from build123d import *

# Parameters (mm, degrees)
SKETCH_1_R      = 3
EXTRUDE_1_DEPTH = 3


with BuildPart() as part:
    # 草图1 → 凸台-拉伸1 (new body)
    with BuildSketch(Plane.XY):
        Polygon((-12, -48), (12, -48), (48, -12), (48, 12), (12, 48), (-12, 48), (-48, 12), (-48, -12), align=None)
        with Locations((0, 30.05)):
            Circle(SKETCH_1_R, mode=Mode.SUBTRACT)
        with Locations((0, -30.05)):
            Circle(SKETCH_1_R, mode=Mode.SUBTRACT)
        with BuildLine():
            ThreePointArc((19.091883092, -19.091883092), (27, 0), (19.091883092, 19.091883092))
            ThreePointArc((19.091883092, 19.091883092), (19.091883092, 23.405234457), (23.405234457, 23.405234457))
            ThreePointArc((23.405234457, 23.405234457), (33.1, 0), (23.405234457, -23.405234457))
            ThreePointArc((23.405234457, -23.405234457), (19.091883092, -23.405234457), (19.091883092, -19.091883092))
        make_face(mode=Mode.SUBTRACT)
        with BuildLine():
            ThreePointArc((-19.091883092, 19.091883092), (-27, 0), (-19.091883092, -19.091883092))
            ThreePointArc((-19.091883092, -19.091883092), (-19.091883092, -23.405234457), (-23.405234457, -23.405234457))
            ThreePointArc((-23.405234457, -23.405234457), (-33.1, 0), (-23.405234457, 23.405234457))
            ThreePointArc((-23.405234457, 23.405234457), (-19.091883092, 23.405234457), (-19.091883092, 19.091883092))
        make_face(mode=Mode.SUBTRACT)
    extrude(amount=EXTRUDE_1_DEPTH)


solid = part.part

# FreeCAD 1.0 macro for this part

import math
import FreeCAD as App
import Part
import Sketcher

V = App.Vector
Q = App.Units.Quantity

doc = App.newDocument("Part")
body = doc.addObject("PartDesign::Body", "Body")

# Sketch on XY plane
sketch1 = body.newObject("Sketcher::SketchObject", "Sketch")
sketch1.AttachmentSupport = (doc.getObject("XY_Plane"), [""])
sketch1.MapMode = "FlatFace"
sketch1.addGeometry([
    Part.LineSegment(V(-12, -48, 0), V(12, -48, 0)),  # 0
    Part.LineSegment(V(12, -48, 0), V(48, -12, 0)),  # 1
    Part.LineSegment(V(48, -12, 0), V(48, 12, 0)),  # 2
    Part.LineSegment(V(48, 12, 0), V(12, 48, 0)),  # 3
    Part.LineSegment(V(12, 48, 0), V(-12, 48, 0)),  # 4
    Part.LineSegment(V(-12, 48, 0), V(-48, 12, 0)),  # 5
    Part.LineSegment(V(-48, 12, 0), V(-48, -12, 0)),  # 6
    Part.LineSegment(V(-48, -12, 0), V(-12, -48, 0)),  # 7
    Part.Circle(V(0, -30.1, 0), V(0, 0, 1), 3),  # 8
    Part.ArcOfCircle(Part.Circle(V(-21.2, 21.2, 0), V(0, 0, 1), 3), math.radians(-45), math.radians(135)),  # 9
    Part.ArcOfCircle(Part.Circle(V(0, 0, 0), V(0, 0, 1), 27), math.radians(135), math.radians(225)),  # 10
    Part.ArcOfCircle(Part.Circle(V(-21.2, -21.2, 0), V(0, 0, 1), 3), math.radians(-135), math.radians(45)),  # 11
    Part.ArcOfCircle(Part.Circle(V(0, 0, 0), V(0, 0, 1), 33.1), math.radians(135), math.radians(225)),  # 12
    Part.ArcOfCircle(Part.Circle(V(21.2, -21.2, 0), V(0, 0, 1), 3), math.radians(135), math.radians(315)),  # 13
    Part.ArcOfCircle(Part.Circle(V(0, 0, 0), V(0, 0, 1), 27), math.radians(-45), math.radians(45)),  # 14
    Part.ArcOfCircle(Part.Circle(V(21.2, 21.2, 0), V(0, 0, 1), 3), math.radians(45), math.radians(225)),  # 15
    Part.ArcOfCircle(Part.Circle(V(0, 0, 0), V(0, 0, 1), 33.1), math.radians(-45), math.radians(45)),  # 16
    Part.Circle(V(0, 30.1, 0), V(0, 0, 1), 3),  # 17
], False)
sketch1.addConstraint([
    Sketcher.Constraint("Coincident", 0, 2, 1, 1),
    Sketcher.Constraint("Coincident", 1, 2, 2, 1),
    Sketcher.Constraint("Coincident", 2, 2, 3, 1),
    Sketcher.Constraint("Coincident", 3, 2, 4, 1),
    Sketcher.Constraint("Coincident", 4, 2, 5, 1),
    Sketcher.Constraint("Coincident", 5, 2, 6, 1),
    Sketcher.Constraint("Coincident", 6, 2, 7, 1),
    Sketcher.Constraint("Coincident", 7, 2, 0, 1),
    Sketcher.Constraint("Tangent", 9, 1, 10, 1),
    Sketcher.Constraint("Tangent", 10, 2, 11, 2),
    Sketcher.Constraint("Tangent", 11, 1, 12, 2),
    Sketcher.Constraint("Tangent", 12, 1, 9, 2),
    Sketcher.Constraint("Tangent", 13, 1, 14, 1),
    Sketcher.Constraint("Tangent", 14, 2, 15, 2),
    Sketcher.Constraint("Tangent", 15, 1, 16, 2),
    Sketcher.Constraint("Tangent", 16, 1, 13, 2),
    Sketcher.Constraint("Horizontal", 0),
    Sketcher.Constraint("Vertical", 2),
    Sketcher.Constraint("Horizontal", 4),
    Sketcher.Constraint("Vertical", 6),
    Sketcher.Constraint("Coincident", 10, 3, -1, 1),
    Sketcher.Constraint("Coincident", 12, 3, -1, 1),
    Sketcher.Constraint("Coincident", 14, 3, -1, 1),
    Sketcher.Constraint("Coincident", 16, 3, -1, 1),
    Sketcher.Constraint("Equal", 11, 13),
    Sketcher.Constraint("Equal", 10, 14),
    Sketcher.Constraint("Equal", 8, 17),
    Sketcher.Constraint("Symmetric", 8, 3, 17, 3, -1, 1),
    Sketcher.Constraint("Symmetric", 0, 2, 4, 2, -1, 1),
    Sketcher.Constraint("Symmetric", 1, 2, 5, 2, -1, 1),
    Sketcher.Constraint("PointOnObject", 8, 3, -2),
    Sketcher.Constraint("Perpendicular", 1, 3),
    Sketcher.Constraint("Perpendicular", 5, 7),
    Sketcher.Constraint("Horizontal", 11, 3, 13, 3),
    Sketcher.Constraint("Horizontal", 9, 3, 15, 3),
    Sketcher.Constraint("Horizontal", 2, 2, 5, 2),
    Sketcher.Constraint("Horizontal", 1, 2, 6, 2),
    Sketcher.Constraint("Vertical", 9, 3, 11, 3),
    Sketcher.Constraint("Vertical", 0, 2, 3, 2),
    Sketcher.Constraint("Equal", 4, 2),
    Sketcher.Constraint("Diameter", 8, Q("6 mm")),
    Sketcher.Constraint("Radius", 10, Q("27 mm")),
    Sketcher.Constraint("Radius", 12, Q("33.1 mm")),
    Sketcher.Constraint("DistanceX", 0, 1, 0, 2, Q("24 mm")),
    Sketcher.Constraint("DistanceY", 0, 2, -1, 1, Q("48 mm")),
    Sketcher.Constraint("DistanceY", 8, 3, -1, 1, Q("30.05 mm")),
    Sketcher.Constraint("DistanceX", 9, 3, -1, 1, Q("21.248559 mm")),
])
pad1 = body.newObject("PartDesign::Pad", "Pad")
pad1.Profile = sketch1
pad1.Length = 3

doc.recompute()
